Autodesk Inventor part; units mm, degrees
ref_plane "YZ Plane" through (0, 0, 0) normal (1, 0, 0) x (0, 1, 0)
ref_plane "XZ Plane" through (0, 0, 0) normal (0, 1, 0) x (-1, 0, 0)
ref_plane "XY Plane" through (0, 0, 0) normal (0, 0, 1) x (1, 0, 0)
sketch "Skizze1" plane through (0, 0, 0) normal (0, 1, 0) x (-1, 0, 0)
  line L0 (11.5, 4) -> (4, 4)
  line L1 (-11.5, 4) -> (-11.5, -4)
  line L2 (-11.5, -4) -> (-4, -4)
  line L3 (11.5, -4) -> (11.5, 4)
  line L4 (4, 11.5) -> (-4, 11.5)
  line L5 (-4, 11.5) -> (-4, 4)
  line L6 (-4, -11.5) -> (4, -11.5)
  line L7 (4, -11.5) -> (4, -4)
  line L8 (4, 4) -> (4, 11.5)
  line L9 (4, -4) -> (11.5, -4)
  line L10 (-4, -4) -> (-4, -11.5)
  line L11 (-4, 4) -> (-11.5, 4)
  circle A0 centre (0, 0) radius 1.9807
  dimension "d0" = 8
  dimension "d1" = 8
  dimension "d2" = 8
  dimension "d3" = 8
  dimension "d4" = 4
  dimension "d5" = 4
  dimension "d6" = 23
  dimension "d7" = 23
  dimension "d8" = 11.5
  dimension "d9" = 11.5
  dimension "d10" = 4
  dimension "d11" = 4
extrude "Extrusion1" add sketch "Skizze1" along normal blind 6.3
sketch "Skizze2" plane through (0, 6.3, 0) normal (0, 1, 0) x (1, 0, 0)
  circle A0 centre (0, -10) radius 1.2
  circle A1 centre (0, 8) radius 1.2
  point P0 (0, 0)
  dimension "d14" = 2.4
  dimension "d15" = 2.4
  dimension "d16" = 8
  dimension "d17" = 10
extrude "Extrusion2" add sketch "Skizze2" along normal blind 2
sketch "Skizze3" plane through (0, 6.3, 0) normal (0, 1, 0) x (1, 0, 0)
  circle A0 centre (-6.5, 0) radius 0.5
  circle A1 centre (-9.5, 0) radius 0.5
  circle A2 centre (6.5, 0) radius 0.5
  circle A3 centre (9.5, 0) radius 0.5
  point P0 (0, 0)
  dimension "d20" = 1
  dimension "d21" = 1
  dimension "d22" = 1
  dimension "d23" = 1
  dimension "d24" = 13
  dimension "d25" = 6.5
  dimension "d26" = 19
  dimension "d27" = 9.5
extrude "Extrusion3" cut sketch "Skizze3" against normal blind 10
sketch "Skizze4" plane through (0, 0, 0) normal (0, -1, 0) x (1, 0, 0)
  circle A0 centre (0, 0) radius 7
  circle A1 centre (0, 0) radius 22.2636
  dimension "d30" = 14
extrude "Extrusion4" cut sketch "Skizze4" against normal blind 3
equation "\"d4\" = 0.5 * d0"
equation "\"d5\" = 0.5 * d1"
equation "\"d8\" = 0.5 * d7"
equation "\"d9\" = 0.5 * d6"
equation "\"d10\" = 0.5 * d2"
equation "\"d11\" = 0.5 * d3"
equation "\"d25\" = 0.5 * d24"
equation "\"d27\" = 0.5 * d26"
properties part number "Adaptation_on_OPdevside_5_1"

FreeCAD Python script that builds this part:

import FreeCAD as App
import Part
import Sketcher
from FreeCAD import Vector


def add_polygon(sketch, points):
    """Adds a closed chain of lines whose ends are joined by coincident constraints."""
    first, n = sketch.GeometryCount, len(points)
    for a, b in zip(points, points[1:] + points[:1]):
        sketch.addGeometry(Part.LineSegment(App.Vector(*a, 0), App.Vector(*b, 0)), False)
    for i in range(n):
        sketch.addConstraint(Sketcher.Constraint("Coincident", first + i, 2, first + (i + 1) % n, 1))

doc = App.newDocument("Part")
body = doc.addObject("PartDesign::Body", "Body")

# Sketch on XZ plane
sketch1 = body.newObject("Sketcher::SketchObject", "Sketch")
sketch1.AttachmentSupport = (doc.getObject("XZ_Plane"), [""])
sketch1.MapMode = "FlatFace"
add_polygon(sketch1, [(-11.5, -4), (-11.5, 4), (-4, 4), (-4, 11.5), (4, 11.5), (4, 4), (11.5, 4), (11.5, -4), (4, -4), (4, -11.5), (-4, -11.5), (-4, -4)])  # lines 0-11
sketch1.addGeometry(Part.Circle(Vector(0, 0, 0), Vector(0, 0, 1), 1.9807), False)  # 12
sketch1.addConstraint([
    Sketcher.Constraint("Vertical", 0),
    Sketcher.Constraint("Horizontal", 1),
    Sketcher.Constraint("Vertical", 2),
    Sketcher.Constraint("Horizontal", 3),
    Sketcher.Constraint("Vertical", 4),
    Sketcher.Constraint("Horizontal", 5),
    Sketcher.Constraint("Vertical", 6),
    Sketcher.Constraint("Horizontal", 7),
    Sketcher.Constraint("Vertical", 8),
    Sketcher.Constraint("Horizontal", 9),
    Sketcher.Constraint("Vertical", 10),
    Sketcher.Constraint("Horizontal", 11),
    Sketcher.Constraint("Coincident", 12, 3, -1, 1),
    Sketcher.Constraint("Symmetric", 0, 2, 6, 2, -1, 1),
    Sketcher.Constraint("Symmetric", 2, 2, 8, 2, -1, 1),
    Sketcher.Constraint("Symmetric", 4, 2, 10, 2, -1, 1),
    Sketcher.Constraint("Symmetric", 1, 2, 4, 2, -2),
    Sketcher.Constraint("Equal", 9, 0),
    Sketcher.Constraint("Equal", 11, 2),
    Sketcher.Constraint("DistanceX", 3, 1, 3, 2, 8.0),
    Sketcher.Constraint("DistanceX", 0, 2, -1, 1, 11.5),
    Sketcher.Constraint("Diameter", 12, 3.9614),
])
pad1 = body.newObject("PartDesign::Pad", "Pad")
pad1.Profile = sketch1
pad1.Length = 6.3
pad1.Reversed = True

# Sketch on XZ plane
sketch2 = body.newObject("Sketcher::SketchObject", "Sketch001")
sketch2.AttachmentSupport = (doc.getObject("XZ_Plane"), [""])
sketch2.MapMode = "FlatFace"
sketch2.AttachmentOffset = App.Placement(Vector(0, 0, -6.3), App.Rotation())
sketch2.addGeometry([
    Part.Circle(Vector(0, 10, 0), Vector(0, 0, 1), 1.2),
    Part.Circle(Vector(0, -8, 0), Vector(0, 0, 1), 1.2),
], False)
sketch2.addConstraint([
    Sketcher.Constraint("Equal", 0, 1),
    Sketcher.Constraint("PointOnObject", 0, 3, -2),
    Sketcher.Constraint("PointOnObject", 1, 3, -2),
    Sketcher.Constraint("Diameter", 0, 2.4),
    Sketcher.Constraint("DistanceY", -1, 1, 0, 3, 10.0),
    Sketcher.Constraint("DistanceY", 1, 3, -1, 1, 8.0),
])
pad2 = body.newObject("PartDesign::Pad", "Pad001")
pad2.Profile = sketch2
pad2.Length = 2
pad2.Reversed = True

# Sketch on XZ plane
sketch3 = body.newObject("Sketcher::SketchObject", "Sketch002")
sketch3.AttachmentSupport = (doc.getObject("XZ_Plane"), [""])
sketch3.MapMode = "FlatFace"
sketch3.AttachmentOffset = App.Placement(Vector(0, 0, -6.3), App.Rotation())
sketch3.addGeometry([
    Part.Circle(Vector(-6.5, 0, 0), Vector(0, 0, 1), 0.5),
    Part.Circle(Vector(-9.5, 0, 0), Vector(0, 0, 1), 0.5),
    Part.Circle(Vector(6.5, 0, 0), Vector(0, 0, 1), 0.5),
    Part.Circle(Vector(9.5, 0, 0), Vector(0, 0, 1), 0.5),
], False)
sketch3.addConstraint([
    Sketcher.Constraint("Equal", 0, 1),
    Sketcher.Constraint("Equal", 1, 2),
    Sketcher.Constraint("Equal", 2, 3),
    Sketcher.Constraint("Symmetric", 0, 3, 2, 3, -1, 1),
    Sketcher.Constraint("Symmetric", 1, 3, 3, 3, -1, 1),
    Sketcher.Constraint("PointOnObject", 0, 3, -1),
    Sketcher.Constraint("PointOnObject", 1, 3, -1),
    Sketcher.Constraint("Diameter", 0, 1.0),
    Sketcher.Constraint("DistanceX", 0, 3, 2, 3, 13.0),
    Sketcher.Constraint("DistanceX", 1, 3, 3, 3, 19.0),
])
pocket1 = body.newObject("PartDesign::Pocket", "Pocket")
pocket1.Profile = sketch3
pocket1.Length = 10
pocket1.Reversed = True

# Sketch on XZ plane
sketch4 = body.newObject("Sketcher::SketchObject", "Sketch003")
sketch4.AttachmentSupport = (doc.getObject("XZ_Plane"), [""])
sketch4.MapMode = "FlatFace"
sketch4.addGeometry([
    Part.Circle(Vector(0, 0, 0), Vector(0, 0, 1), 22.2636),
    Part.Circle(Vector(0, 0, 0), Vector(0, 0, 1), 7),
], False)
sketch4.addConstraint([
    Sketcher.Constraint("Coincident", 0, 3, -1, 1),
    Sketcher.Constraint("Coincident", 1, 3, -1, 1),
    Sketcher.Constraint("Diameter", 1, 14.0),
    Sketcher.Constraint("Diameter", 0, 44.5272),
])
pocket2 = body.newObject("PartDesign::Pocket", "Pocket001")
pocket2.Profile = sketch4
pocket2.Length = 3

doc.recompute()
